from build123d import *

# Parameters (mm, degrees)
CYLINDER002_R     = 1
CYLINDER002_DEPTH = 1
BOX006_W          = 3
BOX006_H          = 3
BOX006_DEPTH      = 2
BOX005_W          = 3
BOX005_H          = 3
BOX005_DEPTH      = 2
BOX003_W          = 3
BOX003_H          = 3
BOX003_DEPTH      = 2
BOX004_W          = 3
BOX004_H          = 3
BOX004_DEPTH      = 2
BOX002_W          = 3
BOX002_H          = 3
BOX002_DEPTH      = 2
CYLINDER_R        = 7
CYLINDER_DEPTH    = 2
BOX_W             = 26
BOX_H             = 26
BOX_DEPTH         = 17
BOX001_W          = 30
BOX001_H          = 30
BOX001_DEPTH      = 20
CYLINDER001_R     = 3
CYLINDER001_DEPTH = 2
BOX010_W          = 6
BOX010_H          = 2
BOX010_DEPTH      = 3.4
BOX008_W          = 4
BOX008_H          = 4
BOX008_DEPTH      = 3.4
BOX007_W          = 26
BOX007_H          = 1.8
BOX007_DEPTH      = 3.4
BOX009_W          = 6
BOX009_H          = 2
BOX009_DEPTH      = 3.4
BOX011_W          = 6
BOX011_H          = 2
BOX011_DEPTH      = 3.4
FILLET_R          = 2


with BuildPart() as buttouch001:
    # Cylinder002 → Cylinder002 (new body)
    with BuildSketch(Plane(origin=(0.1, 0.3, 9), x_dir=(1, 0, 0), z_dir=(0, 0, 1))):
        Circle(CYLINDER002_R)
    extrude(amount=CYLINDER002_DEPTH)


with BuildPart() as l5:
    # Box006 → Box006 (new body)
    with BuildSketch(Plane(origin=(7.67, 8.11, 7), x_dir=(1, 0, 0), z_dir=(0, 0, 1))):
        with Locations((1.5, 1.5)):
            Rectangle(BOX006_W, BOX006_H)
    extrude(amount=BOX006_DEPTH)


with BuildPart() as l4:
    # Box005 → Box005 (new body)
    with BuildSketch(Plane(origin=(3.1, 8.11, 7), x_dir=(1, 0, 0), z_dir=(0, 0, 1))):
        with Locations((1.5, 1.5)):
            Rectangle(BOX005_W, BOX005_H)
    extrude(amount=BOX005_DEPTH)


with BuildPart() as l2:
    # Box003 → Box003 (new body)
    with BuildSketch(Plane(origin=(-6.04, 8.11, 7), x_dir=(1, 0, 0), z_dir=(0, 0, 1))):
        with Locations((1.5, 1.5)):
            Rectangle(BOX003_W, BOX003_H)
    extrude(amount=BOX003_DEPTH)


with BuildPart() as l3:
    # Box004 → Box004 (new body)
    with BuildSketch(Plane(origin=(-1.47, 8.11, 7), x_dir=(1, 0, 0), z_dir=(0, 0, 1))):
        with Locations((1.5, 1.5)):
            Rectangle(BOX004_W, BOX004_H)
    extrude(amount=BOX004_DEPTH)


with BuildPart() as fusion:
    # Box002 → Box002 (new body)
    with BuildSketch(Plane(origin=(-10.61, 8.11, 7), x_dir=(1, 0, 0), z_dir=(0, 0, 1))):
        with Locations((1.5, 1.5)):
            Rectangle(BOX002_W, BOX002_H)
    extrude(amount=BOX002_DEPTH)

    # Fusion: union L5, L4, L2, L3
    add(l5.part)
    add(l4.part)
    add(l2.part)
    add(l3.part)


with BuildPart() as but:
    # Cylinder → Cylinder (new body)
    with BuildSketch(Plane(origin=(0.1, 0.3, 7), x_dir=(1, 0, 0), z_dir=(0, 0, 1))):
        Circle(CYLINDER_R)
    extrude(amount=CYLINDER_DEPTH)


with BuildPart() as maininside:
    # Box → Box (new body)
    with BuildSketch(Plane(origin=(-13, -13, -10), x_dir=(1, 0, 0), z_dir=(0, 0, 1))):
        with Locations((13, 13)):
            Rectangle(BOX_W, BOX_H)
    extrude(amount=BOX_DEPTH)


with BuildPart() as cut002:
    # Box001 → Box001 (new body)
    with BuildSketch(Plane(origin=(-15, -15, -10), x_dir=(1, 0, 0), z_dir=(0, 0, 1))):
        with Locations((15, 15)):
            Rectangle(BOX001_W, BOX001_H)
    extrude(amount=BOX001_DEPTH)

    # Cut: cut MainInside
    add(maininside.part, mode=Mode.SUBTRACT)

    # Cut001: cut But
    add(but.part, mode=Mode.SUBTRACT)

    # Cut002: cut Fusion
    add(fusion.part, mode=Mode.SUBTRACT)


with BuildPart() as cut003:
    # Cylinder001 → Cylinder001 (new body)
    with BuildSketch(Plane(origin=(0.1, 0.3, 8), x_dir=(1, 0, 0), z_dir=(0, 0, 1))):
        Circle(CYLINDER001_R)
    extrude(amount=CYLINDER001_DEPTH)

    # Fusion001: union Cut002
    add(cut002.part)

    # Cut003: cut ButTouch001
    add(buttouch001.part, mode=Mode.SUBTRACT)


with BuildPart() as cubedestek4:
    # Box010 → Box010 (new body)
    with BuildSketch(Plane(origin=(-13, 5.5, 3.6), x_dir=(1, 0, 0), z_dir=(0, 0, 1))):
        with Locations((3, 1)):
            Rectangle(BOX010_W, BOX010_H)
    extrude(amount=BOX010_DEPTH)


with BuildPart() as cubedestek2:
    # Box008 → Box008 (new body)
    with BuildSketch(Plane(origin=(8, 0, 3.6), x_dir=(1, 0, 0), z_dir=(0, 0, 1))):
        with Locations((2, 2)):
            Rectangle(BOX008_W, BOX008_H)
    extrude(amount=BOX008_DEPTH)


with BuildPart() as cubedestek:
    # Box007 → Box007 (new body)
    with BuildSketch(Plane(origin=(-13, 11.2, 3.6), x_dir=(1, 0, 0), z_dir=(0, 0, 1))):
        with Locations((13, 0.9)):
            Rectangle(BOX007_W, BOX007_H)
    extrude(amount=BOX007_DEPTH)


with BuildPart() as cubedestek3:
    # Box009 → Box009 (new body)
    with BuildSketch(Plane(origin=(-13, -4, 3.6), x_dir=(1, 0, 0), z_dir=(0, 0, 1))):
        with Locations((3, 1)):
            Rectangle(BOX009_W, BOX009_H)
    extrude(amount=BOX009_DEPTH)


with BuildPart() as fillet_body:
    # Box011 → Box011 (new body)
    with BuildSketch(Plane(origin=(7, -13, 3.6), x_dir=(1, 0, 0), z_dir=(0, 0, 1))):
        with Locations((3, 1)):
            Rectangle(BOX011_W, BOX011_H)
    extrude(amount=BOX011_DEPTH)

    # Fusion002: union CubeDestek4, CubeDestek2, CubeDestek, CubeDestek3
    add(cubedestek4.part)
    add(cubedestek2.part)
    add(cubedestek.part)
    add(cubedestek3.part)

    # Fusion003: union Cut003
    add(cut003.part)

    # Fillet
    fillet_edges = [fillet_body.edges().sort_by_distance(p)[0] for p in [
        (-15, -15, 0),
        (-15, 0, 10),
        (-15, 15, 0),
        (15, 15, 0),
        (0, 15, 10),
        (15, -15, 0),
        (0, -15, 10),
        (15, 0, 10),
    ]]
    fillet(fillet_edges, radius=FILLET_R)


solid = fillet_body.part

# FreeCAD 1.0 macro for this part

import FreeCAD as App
import Part
import Sketcher

V = App.Vector
Q = App.Units.Quantity


def edges_at(feature, points):
    """Names of the edges that pass closest to the given points."""
    edges = feature.Shape.Edges
    near = lambda p: min(range(len(edges)), key=lambda i: edges[i].distToShape(Part.Vertex(*p))[0])
    return sorted({f"Edge{near(p) + 1}" for p in points})


def add_polygon(sketch, points):
    """Adds a closed chain of lines whose ends are joined by coincident constraints."""
    first, n = sketch.GeometryCount, len(points)
    for a, b in zip(points, points[1:] + points[:1]):
        sketch.addGeometry(Part.LineSegment(App.Vector(*a, 0), App.Vector(*b, 0)), False)
    for i in range(n):
        sketch.addConstraint(Sketcher.Constraint("Coincident", first + i, 2, first + (i + 1) % n, 1))

doc = App.newDocument("Part")
body = doc.addObject("PartDesign::Body", "Body")

sketch1 = doc.addObject("Sketcher::SketchObject", "Sketch")
body.addObject(sketch1)
sketch1.AttachmentSupport = (doc.XY_Plane, [""])
sketch1.MapMode = "FlatFace"
sketch1.AttachmentOffset = App.Placement(V(0, 0, 9), App.Rotation())
sketch1.addGeometry(Part.Circle(V(0.1, 0.3, 0), V(0, 0, 1), 1), False)
sketch1.addConstraint([
    Sketcher.Constraint("Diameter", 0, Q("2 mm")),
    Sketcher.Constraint("DistanceX", -1, 1, 0, 3, Q("0.1 mm")),
    Sketcher.Constraint("DistanceY", -1, 1, 0, 3, Q("0.3 mm")),
])
pad1 = doc.addObject("PartDesign::Pad", "Pad")
body.addObject(pad1)
pad1.Profile = sketch1
pad1.Length = 1
body2 = doc.addObject("PartDesign::Body", "Body001")

sketch2 = doc.addObject("Sketcher::SketchObject", "Sketch001")
body2.addObject(sketch2)
sketch2.AttachmentSupport = (doc.getObject("XY_Plane001"), [""])
sketch2.MapMode = "FlatFace"
sketch2.AttachmentOffset = App.Placement(V(0, 0, 7), App.Rotation())
add_polygon(sketch2, [(7.7, 11.1), (7.7, 8.1), (10.7, 8.1), (10.7, 11.1)])
sketch2.addConstraint([
    Sketcher.Constraint("Vertical", 0),
    Sketcher.Constraint("Horizontal", 1),
    Sketcher.Constraint("Vertical", 2),
    Sketcher.Constraint("Horizontal", 3),
    Sketcher.Constraint("Equal", 3, 0),
    Sketcher.Constraint("DistanceX", 1, 1, 1, 2, Q("3 mm")),
    Sketcher.Constraint("DistanceX", -1, 1, 0, 2, Q("7.67 mm")),
    Sketcher.Constraint("DistanceY", -1, 1, 0, 2, Q("8.11 mm")),
])
pad2 = doc.addObject("PartDesign::Pad", "Pad001")
body2.addObject(pad2)
pad2.Profile = sketch2
pad2.Length = 2
body3 = doc.addObject("PartDesign::Body", "Body002")

sketch3 = doc.addObject("Sketcher::SketchObject", "Sketch002")
body3.addObject(sketch3)
sketch3.AttachmentSupport = (doc.getObject("XY_Plane002"), [""])
sketch3.MapMode = "FlatFace"
sketch3.AttachmentOffset = App.Placement(V(0, 0, 7), App.Rotation())
add_polygon(sketch3, [(3.1, 11.1), (3.1, 8.1), (6.1, 8.1), (6.1, 11.1)])
sketch3.addConstraint([
    Sketcher.Constraint("Vertical", 0),
    Sketcher.Constraint("Horizontal", 1),
    Sketcher.Constraint("Vertical", 2),
    Sketcher.Constraint("Horizontal", 3),
    Sketcher.Constraint("Equal", 3, 0),
    Sketcher.Constraint("DistanceX", 1, 1, 1, 2, Q("3 mm")),
    Sketcher.Constraint("DistanceX", -1, 1, 0, 2, Q("3.1 mm")),
    Sketcher.Constraint("DistanceY", -1, 1, 0, 2, Q("8.11 mm")),
])
pad3 = doc.addObject("PartDesign::Pad", "Pad002")
body3.addObject(pad3)
pad3.Profile = sketch3
pad3.Length = 2
body4 = doc.addObject("PartDesign::Body", "Body003")

sketch4 = doc.addObject("Sketcher::SketchObject", "Sketch003")
body4.addObject(sketch4)
sketch4.AttachmentSupport = (doc.getObject("XY_Plane003"), [""])
sketch4.MapMode = "FlatFace"
sketch4.AttachmentOffset = App.Placement(V(0, 0, 7), App.Rotation())
add_polygon(sketch4, [(-6, 11.1), (-6, 8.1), (-3, 8.1), (-3, 11.1)])
sketch4.addConstraint([
    Sketcher.Constraint("Vertical", 0),
    Sketcher.Constraint("Horizontal", 1),
    Sketcher.Constraint("Vertical", 2),
    Sketcher.Constraint("Horizontal", 3),
    Sketcher.Constraint("Equal", 3, 0),
    Sketcher.Constraint("DistanceX", 1, 1, 1, 2, Q("3 mm")),
    Sketcher.Constraint("DistanceX", 0, 2, -1, 1, Q("6.04 mm")),
    Sketcher.Constraint("DistanceY", -1, 1, 0, 2, Q("8.11 mm")),
])
pad4 = doc.addObject("PartDesign::Pad", "Pad003")
body4.addObject(pad4)
pad4.Profile = sketch4
pad4.Length = 2
body5 = doc.addObject("PartDesign::Body", "Body004")

sketch5 = doc.addObject("Sketcher::SketchObject", "Sketch004")
body5.addObject(sketch5)
sketch5.AttachmentSupport = (doc.getObject("XY_Plane004"), [""])
sketch5.MapMode = "FlatFace"
sketch5.AttachmentOffset = App.Placement(V(0, 0, 7), App.Rotation())
add_polygon(sketch5, [(-1.5, 11.1), (-1.5, 8.1), (1.5, 8.1), (1.5, 11.1)])
sketch5.addConstraint([
    Sketcher.Constraint("Vertical", 0),
    Sketcher.Constraint("Horizontal", 1),
    Sketcher.Constraint("Vertical", 2),
    Sketcher.Constraint("Horizontal", 3),
    Sketcher.Constraint("Equal", 3, 0),
    Sketcher.Constraint("DistanceX", 1, 1, 1, 2, Q("3 mm")),
    Sketcher.Constraint("DistanceX", 0, 2, -1, 1, Q("1.47 mm")),
    Sketcher.Constraint("DistanceY", -1, 1, 0, 2, Q("8.11 mm")),
])
pad5 = doc.addObject("PartDesign::Pad", "Pad004")
body5.addObject(pad5)
pad5.Profile = sketch5
pad5.Length = 2
body6 = doc.addObject("PartDesign::Body", "Body005")
body6.AllowCompound = True

sketch6 = doc.addObject("Sketcher::SketchObject", "Sketch005")
body6.addObject(sketch6)
sketch6.AttachmentSupport = (doc.getObject("XY_Plane005"), [""])
sketch6.MapMode = "FlatFace"
sketch6.AttachmentOffset = App.Placement(V(0, 0, 7), App.Rotation())
add_polygon(sketch6, [(-10.6, 11.1), (-10.6, 8.1), (-7.6, 8.1), (-7.6, 11.1)])
sketch6.addConstraint([
    Sketcher.Constraint("Vertical", 0),
    Sketcher.Constraint("Horizontal", 1),
    Sketcher.Constraint("Vertical", 2),
    Sketcher.Constraint("Horizontal", 3),
    Sketcher.Constraint("Equal", 3, 0),
    Sketcher.Constraint("DistanceX", 1, 1, 1, 2, Q("3 mm")),
    Sketcher.Constraint("DistanceX", 0, 2, -1, 1, Q("10.61 mm")),
    Sketcher.Constraint("DistanceY", -1, 1, 0, 2, Q("8.11 mm")),
])
pad6 = doc.addObject("PartDesign::Pad", "Pad005")
body6.addObject(pad6)
pad6.Profile = sketch6
pad6.Length = 2
doc.recompute()

boolean = doc.addObject("PartDesign::Boolean", "Boolean")
body6.addObject(boolean)
boolean.Type = "Fuse"
boolean.addObjects([body2])
doc.recompute()

boolean2 = doc.addObject("PartDesign::Boolean", "Boolean001")
body6.addObject(boolean2)
boolean2.Type = "Fuse"
boolean2.addObjects([body3])
doc.recompute()

boolean3 = doc.addObject("PartDesign::Boolean", "Boolean002")
body6.addObject(boolean3)
boolean3.Type = "Fuse"
boolean3.addObjects([body4])
doc.recompute()

boolean4 = doc.addObject("PartDesign::Boolean", "Boolean003")
body6.addObject(boolean4)
boolean4.Type = "Fuse"
boolean4.addObjects([body5])
body7 = doc.addObject("PartDesign::Body", "Body006")

sketch7 = doc.addObject("Sketcher::SketchObject", "Sketch006")
body7.addObject(sketch7)
sketch7.AttachmentSupport = (doc.getObject("XY_Plane006"), [""])
sketch7.MapMode = "FlatFace"
sketch7.AttachmentOffset = App.Placement(V(0, 0, 7), App.Rotation())
sketch7.addGeometry(Part.Circle(V(0, 0, 0), V(0, 0, 1), 7), False)
sketch7.addConstraint([
    Sketcher.Constraint("Diameter", 0, Q("14 mm")),
    Sketcher.Constraint("DistanceX", -1, 1, 0, 3, Q("0.1 mm")),
    Sketcher.Constraint("DistanceY", -1, 1, 0, 3, Q("0.3 mm")),
])
pad7 = doc.addObject("PartDesign::Pad", "Pad006")
body7.addObject(pad7)
pad7.Profile = sketch7
pad7.Length = 2
body8 = doc.addObject("PartDesign::Body", "Body007")

sketch8 = doc.addObject("Sketcher::SketchObject", "Sketch007")
body8.addObject(sketch8)
sketch8.AttachmentSupport = (doc.getObject("XY_Plane007"), [""])
sketch8.MapMode = "FlatFace"
sketch8.AttachmentOffset = App.Placement(V(0, 0, -10), App.Rotation())
add_polygon(sketch8, [(-13, 13), (-13, -13), (13, -13), (13, 13)])
sketch8.addConstraint([
    Sketcher.Constraint("Vertical", 0),
    Sketcher.Constraint("Horizontal", 1),
    Sketcher.Constraint("Vertical", 2),
    Sketcher.Constraint("Horizontal", 3),
    Sketcher.Constraint("Symmetric", 0, 2, 2, 2, -1, 1),
    Sketcher.Constraint("Equal", 3, 0),
    Sketcher.Constraint("DistanceX", 1, 1, 1, 2, Q("26 mm")),
])
pad8 = doc.addObject("PartDesign::Pad", "Pad007")
body8.addObject(pad8)
pad8.Profile = sketch8
pad8.Length = 17
body9 = doc.addObject("PartDesign::Body", "Body008")

sketch9 = doc.addObject("Sketcher::SketchObject", "Sketch008")
body9.addObject(sketch9)
sketch9.AttachmentSupport = (doc.getObject("XY_Plane008"), [""])
sketch9.MapMode = "FlatFace"
sketch9.AttachmentOffset = App.Placement(V(0, 0, -10), App.Rotation())
add_polygon(sketch9, [(-15, 15), (-15, -15), (15, -15), (15, 15)])
sketch9.addConstraint([
    Sketcher.Constraint("Vertical", 0),
    Sketcher.Constraint("Horizontal", 1),
    Sketcher.Constraint("Vertical", 2),
    Sketcher.Constraint("Horizontal", 3),
    Sketcher.Constraint("Symmetric", 0, 2, 2, 2, -1, 1),
    Sketcher.Constraint("Equal", 3, 0),
    Sketcher.Constraint("DistanceX", 1, 1, 1, 2, Q("30 mm")),
])
pad9 = doc.addObject("PartDesign::Pad", "Pad008")
body9.addObject(pad9)
pad9.Profile = sketch9
pad9.Length = 20
doc.recompute()

boolean5 = doc.addObject("PartDesign::Boolean", "Boolean004")
body9.addObject(boolean5)
boolean5.Type = "Cut"
boolean5.addObjects([body8])
doc.recompute()

boolean6 = doc.addObject("PartDesign::Boolean", "Boolean005")
body9.addObject(boolean6)
boolean6.Type = "Cut"
boolean6.addObjects([body7])
doc.recompute()

boolean7 = doc.addObject("PartDesign::Boolean", "Boolean006")
body9.addObject(boolean7)
boolean7.Type = "Cut"
boolean7.addObjects([body6])
body10 = doc.addObject("PartDesign::Body", "Body009")

sketch10 = doc.addObject("Sketcher::SketchObject", "Sketch009")
body10.addObject(sketch10)
sketch10.AttachmentSupport = (doc.getObject("XY_Plane009"), [""])
sketch10.MapMode = "FlatFace"
sketch10.AttachmentOffset = App.Placement(V(0, 0, 8), App.Rotation())
sketch10.addGeometry(Part.Circle(V(0.1, 0.3, 0), V(0, 0, 1), 3), False)
sketch10.addConstraint([
    Sketcher.Constraint("Diameter", 0, Q("6 mm")),
    Sketcher.Constraint("DistanceX", -1, 1, 0, 3, Q("0.1 mm")),
    Sketcher.Constraint("DistanceY", -1, 1, 0, 3, Q("0.3 mm")),
])
pad10 = doc.addObject("PartDesign::Pad", "Pad009")
body10.addObject(pad10)
pad10.Profile = sketch10
pad10.Length = 2
doc.recompute()

boolean8 = doc.addObject("PartDesign::Boolean", "Boolean007")
body10.addObject(boolean8)
boolean8.Type = "Fuse"
boolean8.addObjects([body9])
doc.recompute()

boolean9 = doc.addObject("PartDesign::Boolean", "Boolean008")
body10.addObject(boolean9)
boolean9.Type = "Cut"
boolean9.addObjects([body])
body11 = doc.addObject("PartDesign::Body", "Body010")

sketch11 = doc.addObject("Sketcher::SketchObject", "Sketch010")
body11.addObject(sketch11)
sketch11.AttachmentSupport = (doc.getObject("XY_Plane010"), [""])
sketch11.MapMode = "FlatFace"
sketch11.AttachmentOffset = App.Placement(V(0, 0, 3.6), App.Rotation())
add_polygon(sketch11, [(-13, 7.5), (-13, 5.5), (-7, 5.5), (-7, 7.5)])
sketch11.addConstraint([
    Sketcher.Constraint("Vertical", 0),
    Sketcher.Constraint("Horizontal", 1),
    Sketcher.Constraint("Vertical", 2),
    Sketcher.Constraint("Horizontal", 3),
    Sketcher.Constraint("DistanceX", 1, 1, 1, 2, Q("6 mm")),
    Sketcher.Constraint("DistanceY", 0, 2, 0, 1, Q("2 mm")),
    Sketcher.Constraint("DistanceX", 0, 2, -1, 1, Q("13 mm")),
    Sketcher.Constraint("DistanceY", -1, 1, 0, 2, Q("5.5 mm")),
])
pad11 = doc.addObject("PartDesign::Pad", "Pad010")
body11.addObject(pad11)
pad11.Profile = sketch11
pad11.Length = 3.4
body12 = doc.addObject("PartDesign::Body", "Body011")

sketch12 = doc.addObject("Sketcher::SketchObject", "Sketch011")
body12.addObject(sketch12)
sketch12.AttachmentSupport = (doc.getObject("XY_Plane011"), [""])
sketch12.MapMode = "FlatFace"
sketch12.AttachmentOffset = App.Placement(V(0, 0, 3.6), App.Rotation())
add_polygon(sketch12, [(8, 4), (8, 0), (12, 0), (12, 4)])
sketch12.addConstraint([
    Sketcher.Constraint("Vertical", 0),
    Sketcher.Constraint("Horizontal", 1),
    Sketcher.Constraint("Vertical", 2),
    Sketcher.Constraint("Horizontal", 3),
    Sketcher.Constraint("PointOnObject", 0, 2, -1),
    Sketcher.Constraint("Equal", 3, 0),
    Sketcher.Constraint("DistanceX", 1, 1, 1, 2, Q("4 mm")),
    Sketcher.Constraint("DistanceX", -1, 1, 0, 2, Q("8 mm")),
])
pad12 = doc.addObject("PartDesign::Pad", "Pad011")
body12.addObject(pad12)
pad12.Profile = sketch12
pad12.Length = 3.4
body13 = doc.addObject("PartDesign::Body", "Body012")

sketch13 = doc.addObject("Sketcher::SketchObject", "Sketch012")
body13.addObject(sketch13)
sketch13.AttachmentSupport = (doc.getObject("XY_Plane012"), [""])
sketch13.MapMode = "FlatFace"
sketch13.AttachmentOffset = App.Placement(V(0, 0, 3.6), App.Rotation())
add_polygon(sketch13, [(-13, 13), (-13, 11.2), (13, 11.2), (13, 13)])
sketch13.addConstraint([
    Sketcher.Constraint("Vertical", 0),
    Sketcher.Constraint("Horizontal", 1),
    Sketcher.Constraint("Vertical", 2),
    Sketcher.Constraint("Horizontal", 3),
    Sketcher.Constraint("DistanceX", 1, 1, 1, 2, Q("26 mm")),
    Sketcher.Constraint("DistanceY", 0, 2, 0, 1, Q("1.8 mm")),
    Sketcher.Constraint("DistanceX", 0, 2, -1, 1, Q("13 mm")),
    Sketcher.Constraint("DistanceY", -1, 1, 2, 2, Q("13 mm")),
])
pad13 = doc.addObject("PartDesign::Pad", "Pad012")
body13.addObject(pad13)
pad13.Profile = sketch13
pad13.Length = 3.4
body14 = doc.addObject("PartDesign::Body", "Body013")

sketch14 = doc.addObject("Sketcher::SketchObject", "Sketch013")
body14.addObject(sketch14)
sketch14.AttachmentSupport = (doc.getObject("XY_Plane013"), [""])
sketch14.MapMode = "FlatFace"
sketch14.AttachmentOffset = App.Placement(V(0, 0, 3.6), App.Rotation())
add_polygon(sketch14, [(-13, -2), (-13, -4), (-7, -4), (-7, -2)])
sketch14.addConstraint([
    Sketcher.Constraint("Vertical", 0),
    Sketcher.Constraint("Horizontal", 1),
    Sketcher.Constraint("Vertical", 2),
    Sketcher.Constraint("Horizontal", 3),
    Sketcher.Constraint("DistanceX", 1, 1, 1, 2, Q("6 mm")),
    Sketcher.Constraint("DistanceY", 0, 2, 0, 1, Q("2 mm")),
    Sketcher.Constraint("DistanceX", 0, 2, -1, 1, Q("13 mm")),
    Sketcher.Constraint("DistanceY", 0, 2, -1, 1, Q("4 mm")),
])
pad14 = doc.addObject("PartDesign::Pad", "Pad013")
body14.addObject(pad14)
pad14.Profile = sketch14
pad14.Length = 3.4
body15 = doc.addObject("PartDesign::Body", "Body014")
body15.AllowCompound = True

sketch15 = doc.addObject("Sketcher::SketchObject", "Sketch014")
body15.addObject(sketch15)
sketch15.AttachmentSupport = (doc.getObject("XY_Plane014"), [""])
sketch15.MapMode = "FlatFace"
sketch15.AttachmentOffset = App.Placement(V(0, 0, 3.6), App.Rotation())
add_polygon(sketch15, [(7, -11), (7, -13), (13, -13), (13, -11)])
sketch15.addConstraint([
    Sketcher.Constraint("Vertical", 0),
    Sketcher.Constraint("Horizontal", 1),
    Sketcher.Constraint("Vertical", 2),
    Sketcher.Constraint("Horizontal", 3),
    Sketcher.Constraint("DistanceX", 1, 1, 1, 2, Q("6 mm")),
    Sketcher.Constraint("DistanceY", 0, 2, 0, 1, Q("2 mm")),
    Sketcher.Constraint("DistanceX", -1, 1, 0, 2, Q("7 mm")),
    Sketcher.Constraint("DistanceY", 0, 2, -1, 1, Q("13 mm")),
])
pad15 = doc.addObject("PartDesign::Pad", "Pad014")
body15.addObject(pad15)
pad15.Profile = sketch15
pad15.Length = 3.4
doc.recompute()

boolean10 = doc.addObject("PartDesign::Boolean", "Boolean009")
body15.addObject(boolean10)
boolean10.Type = "Fuse"
boolean10.addObjects([body11])
doc.recompute()

boolean11 = doc.addObject("PartDesign::Boolean", "Boolean010")
body15.addObject(boolean11)
boolean11.Type = "Fuse"
boolean11.addObjects([body12])
doc.recompute()

boolean12 = doc.addObject("PartDesign::Boolean", "Boolean011")
body15.addObject(boolean12)
boolean12.Type = "Fuse"
boolean12.addObjects([body13])
doc.recompute()

boolean13 = doc.addObject("PartDesign::Boolean", "Boolean012")
body15.addObject(boolean13)
boolean13.Type = "Fuse"
boolean13.addObjects([body14])
doc.recompute()

boolean14 = doc.addObject("PartDesign::Boolean", "Boolean013")
body15.addObject(boolean14)
boolean14.Type = "Fuse"
boolean14.addObjects([body10])
doc.recompute()

fillet = doc.addObject("PartDesign::Fillet", "Fillet")
body15.addObject(fillet)
fillet.Base = (boolean14, edges_at(boolean14, [
    (-15, -15, 0),
    (-15, 0, 10),
    (-15, 15, 0),
    (15, 15, 0),
    (0, 15, 10),
    (15, -15, 0),
    (0, -15, 10),
    (15, 0, 10),
]))
fillet.Radius = 2

doc.recompute()
